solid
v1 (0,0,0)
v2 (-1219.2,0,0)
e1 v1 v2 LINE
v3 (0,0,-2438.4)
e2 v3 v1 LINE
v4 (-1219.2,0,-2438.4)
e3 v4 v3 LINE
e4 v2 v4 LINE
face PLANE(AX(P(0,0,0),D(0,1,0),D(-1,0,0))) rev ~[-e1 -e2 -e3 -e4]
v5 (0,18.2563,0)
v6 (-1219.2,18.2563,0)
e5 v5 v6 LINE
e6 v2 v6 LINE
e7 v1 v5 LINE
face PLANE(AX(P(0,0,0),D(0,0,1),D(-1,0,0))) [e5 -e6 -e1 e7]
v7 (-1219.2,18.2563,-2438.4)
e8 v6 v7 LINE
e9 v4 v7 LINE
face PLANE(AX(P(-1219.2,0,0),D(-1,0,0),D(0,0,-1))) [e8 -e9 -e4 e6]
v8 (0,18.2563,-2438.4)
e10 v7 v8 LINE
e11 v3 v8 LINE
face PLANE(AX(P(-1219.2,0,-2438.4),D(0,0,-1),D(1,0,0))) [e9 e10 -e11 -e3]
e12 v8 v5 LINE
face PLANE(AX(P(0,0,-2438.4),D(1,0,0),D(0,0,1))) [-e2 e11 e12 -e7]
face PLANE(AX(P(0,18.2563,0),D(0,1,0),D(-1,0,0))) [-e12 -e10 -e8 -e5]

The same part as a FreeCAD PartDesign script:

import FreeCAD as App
import Part
import Sketcher
from FreeCAD import Vector
Q = App.Units.Quantity

doc = App.newDocument("Part")
body = doc.addObject("PartDesign::Body", "Body")

sketch1 = body.newObject("Sketcher::SketchObject", "Sketch")
sketch1.AttachmentSupport = (doc.getObject("XZ_Plane"), [""])
sketch1.MapMode = "FlatFace"
sketch1.addGeometry([
    Part.LineSegment(Vector(-1219, 0, 0), Vector(0, 0, 0)),
    Part.LineSegment(Vector(0, 0, 0), Vector(0, -2438, 0)),
    Part.LineSegment(Vector(0, -2438, 0), Vector(-1219, -2438, 0)),
    Part.LineSegment(Vector(-1219, -2438, 0), Vector(-1219, 0, 0)),
], False)
sketch1.addConstraint([
    Sketcher.Constraint("Coincident", 0, 2, 1, 1),
    Sketcher.Constraint("Coincident", 1, 2, 2, 1),
    Sketcher.Constraint("Coincident", 2, 2, 3, 1),
    Sketcher.Constraint("Coincident", 3, 2, 0, 1),
    Sketcher.Constraint("Horizontal", 0),
    Sketcher.Constraint("Vertical", 1),
    Sketcher.Constraint("Horizontal", 2),
    Sketcher.Constraint("Vertical", 3),
    Sketcher.Constraint("Coincident", 0, 2, -1, 1),
    Sketcher.Constraint("DistanceX", 0, 1, 0, 2, Q("48 in")),
    Sketcher.Constraint("DistanceY", 1, 2, 1, 1, Q("96 in")),
])
pad1 = body.newObject("PartDesign::Pad", "Pad")
pad1.Profile = sketch1
pad1.Length = Q("0.718752 in")
pad1.Reversed = True

doc.recompute()
